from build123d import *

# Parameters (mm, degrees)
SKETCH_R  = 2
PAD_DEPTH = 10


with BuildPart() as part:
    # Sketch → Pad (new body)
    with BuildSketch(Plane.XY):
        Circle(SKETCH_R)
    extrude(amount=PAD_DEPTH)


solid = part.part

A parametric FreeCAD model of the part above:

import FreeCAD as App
import Part
import Sketcher

doc = App.newDocument("Part")
body = doc.addObject("PartDesign::Body", "Body")

sketch1 = body.newObject("Sketcher::SketchObject", "Sketch")
sketch1.AttachmentSupport = (doc.getObject("XY_Plane"), [""])
sketch1.MapMode = "FlatFace"
sketch1.addGeometry(Part.Circle(App.Vector(0, 0, 0), App.Vector(0, 0, 1), 2), False)
sketch1.addConstraint([
    Sketcher.Constraint("Coincident", 0, 3, -1, 1),
    Sketcher.Constraint("Diameter", 0, 4.0),
])
pad1 = body.newObject("PartDesign::Pad", "Pad")
pad1.Profile = sketch1
pad1.Length = 10

doc.recompute()
